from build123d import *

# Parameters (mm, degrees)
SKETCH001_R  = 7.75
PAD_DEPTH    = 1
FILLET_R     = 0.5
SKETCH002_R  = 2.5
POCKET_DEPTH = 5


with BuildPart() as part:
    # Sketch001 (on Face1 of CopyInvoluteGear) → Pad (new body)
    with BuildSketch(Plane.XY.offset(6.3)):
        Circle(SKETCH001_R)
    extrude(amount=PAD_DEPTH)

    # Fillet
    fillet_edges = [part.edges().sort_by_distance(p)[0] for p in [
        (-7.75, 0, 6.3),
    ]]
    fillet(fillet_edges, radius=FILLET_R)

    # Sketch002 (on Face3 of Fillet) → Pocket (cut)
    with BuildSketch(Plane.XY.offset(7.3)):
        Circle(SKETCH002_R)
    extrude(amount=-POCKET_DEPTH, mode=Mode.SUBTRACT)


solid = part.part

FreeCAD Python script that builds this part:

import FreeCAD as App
import Part
import Sketcher
Q = App.Units.Quantity


def edges_at(feature, points):
    """Names of the edges that pass closest to the given points."""
    edges = feature.Shape.Edges
    near = lambda p: min(range(len(edges)), key=lambda i: edges[i].distToShape(Part.Vertex(*p))[0])
    return sorted({f"Edge{near(p) + 1}" for p in points})

doc = App.newDocument("Part")
body = doc.addObject("PartDesign::Body", "Body")

sketch1 = body.newObject("Sketcher::SketchObject", "Sketch")
sketch1.AttachmentSupport = (doc.getObject("XY_Plane"), [""])
sketch1.MapMode = "FlatFace"
sketch1.AttachmentOffset = App.Placement(App.Vector(0, 0, 6.3), App.Rotation())
sketch1.addGeometry(Part.Circle(App.Vector(0, 0, 0), App.Vector(0, 0, 1), 8), False)
sketch1.addConstraint([
    Sketcher.Constraint("Coincident", 0, 3, -1, 1),
    Sketcher.Constraint("Diameter", 0, Q("15.5 mm")),
])
pad1 = body.newObject("PartDesign::Pad", "Pad")
pad1.Profile = sketch1
pad1.Length = 1
doc.recompute()

fillet = body.newObject("PartDesign::Fillet", "Fillet")
fillet.Base = (pad1, edges_at(pad1, [(-7.75, 0, 6.3)]))
fillet.Radius = 0.5

sketch2 = body.newObject("Sketcher::SketchObject", "Sketch001")
sketch2.AttachmentSupport = (doc.getObject("XY_Plane"), [""])
sketch2.MapMode = "FlatFace"
sketch2.AttachmentOffset = App.Placement(App.Vector(0, 0, 7.3), App.Rotation())
sketch2.addGeometry(Part.Circle(App.Vector(0, 0, 0), App.Vector(0, 0, 1), 2.5), False)
sketch2.addConstraint([
    Sketcher.Constraint("Coincident", 0, 3, -1, 1),
    Sketcher.Constraint("Diameter", 0, Q("5 mm")),
])
pocket1 = body.newObject("PartDesign::Pocket", "Pocket")
pocket1.Profile = sketch2
pocket1.Length = 5

doc.recompute()
